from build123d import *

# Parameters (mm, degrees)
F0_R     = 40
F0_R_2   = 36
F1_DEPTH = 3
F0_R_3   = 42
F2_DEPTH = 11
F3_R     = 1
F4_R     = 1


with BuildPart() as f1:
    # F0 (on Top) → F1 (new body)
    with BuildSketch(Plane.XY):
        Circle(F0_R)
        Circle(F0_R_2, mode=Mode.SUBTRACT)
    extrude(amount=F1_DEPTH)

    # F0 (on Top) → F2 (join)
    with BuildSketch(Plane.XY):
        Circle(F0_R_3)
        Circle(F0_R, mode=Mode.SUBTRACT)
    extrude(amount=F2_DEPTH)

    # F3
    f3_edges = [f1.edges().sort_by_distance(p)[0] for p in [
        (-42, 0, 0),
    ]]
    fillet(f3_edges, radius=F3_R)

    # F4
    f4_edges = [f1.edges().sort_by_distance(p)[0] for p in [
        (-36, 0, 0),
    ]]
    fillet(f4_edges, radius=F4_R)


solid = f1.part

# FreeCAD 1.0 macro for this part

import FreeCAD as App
import Part
import Sketcher
from FreeCAD import Vector


def edges_at(feature, points):
    """Names of the edges that pass closest to the given points."""
    edges = feature.Shape.Edges
    near = lambda p: min(range(len(edges)), key=lambda i: edges[i].distToShape(Part.Vertex(*p))[0])
    return sorted({f"Edge{near(p) + 1}" for p in points})

doc = App.newDocument("Part")
body = doc.addObject("PartDesign::Body", "Body")

# Sketch on XY plane
sketch1 = body.newObject("Sketcher::SketchObject", "Sketch")
sketch1.AttachmentSupport = (doc.getObject("XY_Plane"), [""])
sketch1.MapMode = "FlatFace"
sketch1.addGeometry([
    Part.Circle(Vector(0, 0, 0), Vector(0, 0, 1), 40),
    Part.Circle(Vector(0, 0, 0), Vector(0, 0, 1), 36),
], False)
sketch1.addConstraint([
    Sketcher.Constraint("Coincident", 0, 3, -1, 1),
    Sketcher.Constraint("Coincident", 1, 3, -1, 1),
    Sketcher.Constraint("Diameter", 0, 80.0),
    Sketcher.Constraint("Diameter", 1, 72.0),
])
pad1 = body.newObject("PartDesign::Pad", "Pad")
pad1.Profile = sketch1
pad1.Length = 3

# Sketch on XY plane
sketch2 = body.newObject("Sketcher::SketchObject", "Sketch001")
sketch2.AttachmentSupport = (doc.getObject("XY_Plane"), [""])
sketch2.MapMode = "FlatFace"
sketch2.addGeometry([
    Part.Circle(Vector(0, 0, 0), Vector(0, 0, 1), 42),
    Part.Circle(Vector(0, 0, 0), Vector(0, 0, 1), 40),
], False)
sketch2.addConstraint([
    Sketcher.Constraint("Coincident", 0, 3, -1, 1),
    Sketcher.Constraint("Coincident", 1, 3, -1, 1),
    Sketcher.Constraint("Diameter", 0, 84.0),
    Sketcher.Constraint("Diameter", 1, 80.0),
])
pad2 = body.newObject("PartDesign::Pad", "Pad001")
pad2.Profile = sketch2
pad2.Length = 11
doc.recompute()

fillet = body.newObject("PartDesign::Fillet", "Fillet")
fillet.Base = (pad2, edges_at(pad2, [(-42, 0, 0)]))
fillet.Radius = 1
doc.recompute()

fillet2 = body.newObject("PartDesign::Fillet", "Fillet001")
fillet2.Base = (fillet, edges_at(fillet, [(-36, 0, 0)]))
fillet2.Radius = 1

doc.recompute()
